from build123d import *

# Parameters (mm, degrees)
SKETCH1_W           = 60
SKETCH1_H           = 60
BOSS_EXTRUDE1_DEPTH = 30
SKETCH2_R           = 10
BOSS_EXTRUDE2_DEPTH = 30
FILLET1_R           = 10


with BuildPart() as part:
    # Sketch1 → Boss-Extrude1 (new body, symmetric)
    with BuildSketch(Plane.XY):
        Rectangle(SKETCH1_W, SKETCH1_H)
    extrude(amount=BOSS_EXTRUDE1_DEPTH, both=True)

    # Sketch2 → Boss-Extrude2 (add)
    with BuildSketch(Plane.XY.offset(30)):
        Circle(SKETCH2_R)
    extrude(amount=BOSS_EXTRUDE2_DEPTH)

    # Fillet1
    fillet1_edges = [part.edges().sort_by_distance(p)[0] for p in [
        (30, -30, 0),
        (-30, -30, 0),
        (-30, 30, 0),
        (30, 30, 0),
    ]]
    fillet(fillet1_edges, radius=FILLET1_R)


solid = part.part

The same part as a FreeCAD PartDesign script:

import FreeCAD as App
import Part
import Sketcher
from FreeCAD import Vector
Q = App.Units.Quantity


def edges_at(feature, points):
    """Names of the edges that pass closest to the given points."""
    edges = feature.Shape.Edges
    near = lambda p: min(range(len(edges)), key=lambda i: edges[i].distToShape(Part.Vertex(*p))[0])
    return sorted({f"Edge{near(p) + 1}" for p in points})

doc = App.newDocument("Part")
body = doc.addObject("PartDesign::Body", "Body")

sketch1 = doc.addObject("Sketcher::SketchObject", "Sketch")
body.addObject(sketch1)
sketch1.AttachmentSupport = (doc.XY_Plane, [""])
sketch1.MapMode = "FlatFace"
sketch1.addGeometry(Part.LineSegment(Vector(-30, 30, 0), Vector(-30, -30, 0)), False)
sketch1.addGeometry(Part.LineSegment(Vector(-30, -30, 0), Vector(30, -30, 0)), False)
sketch1.addGeometry(Part.LineSegment(Vector(30, -30, 0), Vector(30, 30, 0)), False)
sketch1.addGeometry(Part.LineSegment(Vector(30, 30, 0), Vector(-30, 30, 0)), False)
sketch1.addConstraint(Sketcher.Constraint("Coincident", 0, 2, 1, 1))
sketch1.addConstraint(Sketcher.Constraint("Coincident", 1, 2, 2, 1))
sketch1.addConstraint(Sketcher.Constraint("Coincident", 2, 2, 3, 1))
sketch1.addConstraint(Sketcher.Constraint("Coincident", 3, 2, 0, 1))
sketch1.addConstraint(Sketcher.Constraint("Vertical", 0))
sketch1.addConstraint(Sketcher.Constraint("Horizontal", 1))
sketch1.addConstraint(Sketcher.Constraint("Vertical", 2))
sketch1.addConstraint(Sketcher.Constraint("Horizontal", 3))
sketch1.addConstraint(Sketcher.Constraint("Symmetric", 0, 2, 2, 2, -1, 1))
sketch1.addConstraint(Sketcher.Constraint("Equal", 3, 0))
sketch1.addConstraint(Sketcher.Constraint("DistanceX", 1, 1, 1, 2, Q("60 mm")))
pad1 = doc.addObject("PartDesign::Pad", "Pad")
body.addObject(pad1)
pad1.Profile = sketch1
pad1.Length = 60
pad1.Midplane = True

sketch2 = doc.addObject("Sketcher::SketchObject", "Sketch001")
body.addObject(sketch2)
sketch2.AttachmentSupport = (doc.XY_Plane, [""])
sketch2.MapMode = "FlatFace"
sketch2.AttachmentOffset = App.Placement(Vector(0, 0, 30), App.Rotation())
sketch2.addGeometry(Part.Circle(Vector(0, 0, 0), Vector(0, 0, 1), 10), False)
sketch2.addConstraint(Sketcher.Constraint("Coincident", 0, 3, -1, 1))
sketch2.addConstraint(Sketcher.Constraint("Diameter", 0, Q("20 mm")))
pad2 = doc.addObject("PartDesign::Pad", "Pad001")
body.addObject(pad2)
pad2.Profile = sketch2
pad2.Length = 30
doc.recompute()

fillet = doc.addObject("PartDesign::Fillet", "Fillet")
body.addObject(fillet)
fillet.Base = (pad2, edges_at(pad2, [
    (30, -30, 0),
    (-30, -30, 0),
    (-30, 30, 0),
    (30, 30, 0),
]))
fillet.Radius = 10

doc.recompute()
